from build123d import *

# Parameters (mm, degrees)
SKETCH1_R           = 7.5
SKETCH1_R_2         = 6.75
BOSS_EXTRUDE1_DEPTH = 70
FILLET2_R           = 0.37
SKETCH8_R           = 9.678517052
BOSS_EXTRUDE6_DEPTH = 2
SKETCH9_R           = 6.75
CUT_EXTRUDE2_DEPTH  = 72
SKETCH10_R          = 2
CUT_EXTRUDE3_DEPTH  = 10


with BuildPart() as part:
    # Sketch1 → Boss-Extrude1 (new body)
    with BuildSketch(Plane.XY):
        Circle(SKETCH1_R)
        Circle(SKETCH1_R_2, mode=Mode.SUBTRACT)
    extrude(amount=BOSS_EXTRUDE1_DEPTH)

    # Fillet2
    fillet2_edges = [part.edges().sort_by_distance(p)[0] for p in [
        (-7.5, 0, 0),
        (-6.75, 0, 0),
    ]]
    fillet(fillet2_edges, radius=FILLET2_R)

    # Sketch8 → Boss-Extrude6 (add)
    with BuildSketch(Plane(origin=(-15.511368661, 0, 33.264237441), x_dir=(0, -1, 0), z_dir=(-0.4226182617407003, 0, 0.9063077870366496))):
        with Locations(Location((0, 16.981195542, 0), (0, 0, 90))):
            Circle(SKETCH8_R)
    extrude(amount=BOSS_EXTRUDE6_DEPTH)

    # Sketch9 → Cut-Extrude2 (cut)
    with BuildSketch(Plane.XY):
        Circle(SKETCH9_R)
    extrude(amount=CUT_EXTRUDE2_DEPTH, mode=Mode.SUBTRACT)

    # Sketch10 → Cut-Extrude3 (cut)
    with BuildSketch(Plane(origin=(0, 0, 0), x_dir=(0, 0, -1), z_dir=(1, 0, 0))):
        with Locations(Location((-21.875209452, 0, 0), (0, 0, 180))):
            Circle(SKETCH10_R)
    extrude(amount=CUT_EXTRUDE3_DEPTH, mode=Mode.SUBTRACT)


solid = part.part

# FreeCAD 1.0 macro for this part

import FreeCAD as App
import Part
import Sketcher

V = App.Vector


def edges_at(feature, points):
    """Names of the edges that pass closest to the given points."""
    edges = feature.Shape.Edges
    near = lambda p: min(range(len(edges)), key=lambda i: edges[i].distToShape(Part.Vertex(*p))[0])
    return sorted({f"Edge{near(p) + 1}" for p in points})

doc = App.newDocument("Part")
body = doc.addObject("PartDesign::Body", "Body")

# Sketch on XY plane
sketch1 = body.newObject("Sketcher::SketchObject", "Sketch")
sketch1.AttachmentSupport = (doc.getObject("XY_Plane"), [""])
sketch1.MapMode = "FlatFace"
sketch1.addGeometry([
    Part.Circle(V(0, 0, 0), V(0, 0, 1), 8),
    Part.Circle(V(0, 0, 0), V(0, 0, 1), 7),
], False)
sketch1.addConstraint([
    Sketcher.Constraint("Coincident", 0, 3, -1, 1),
    Sketcher.Constraint("Coincident", 1, 3, -1, 1),
    Sketcher.Constraint("Diameter", 0, 15.0),
    Sketcher.Constraint("Diameter", 1, 13.5),
])
pad1 = body.newObject("PartDesign::Pad", "Pad")
pad1.Profile = sketch1
pad1.Length = 70
doc.recompute()

fillet = body.newObject("PartDesign::Fillet", "Fillet")
fillet.Base = (pad1, edges_at(pad1, [(-7.5, 0, 0), (-6.75, 0, 0)]))
fillet.Radius = 0.37

# Sketch on an angled plane
sketch2 = body.newObject("Sketcher::SketchObject", "Sketch001")
sketch2.Placement = App.Placement(V(-15.511369, 0, 33.264237), App.Rotation(V(0, -1, 0), V(0.906307787, 0, 0.422618262), V(-0.422618262, 0, 0.906307787), "ZXY"))
sketch2.addGeometry(Part.Circle(V(0, 17, 0), V(0, 0, 1), 10), False)
sketch2.addConstraint([
    Sketcher.Constraint("PointOnObject", 0, 3, -2),
    Sketcher.Constraint("Diameter", 0, 19.357034),
    Sketcher.Constraint("DistanceY", -1, 1, 0, 3, 16.981196),
])
pad2 = body.newObject("PartDesign::Pad", "Pad001")
pad2.Profile = sketch2
pad2.Length = 2

# Sketch on XY plane
sketch3 = body.newObject("Sketcher::SketchObject", "Sketch002")
sketch3.AttachmentSupport = (doc.getObject("XY_Plane"), [""])
sketch3.MapMode = "FlatFace"
sketch3.addGeometry(Part.Circle(V(0, 0, 0), V(0, 0, 1), 7), False)
sketch3.addConstraint([
    Sketcher.Constraint("Coincident", 0, 3, -1, 1),
    Sketcher.Constraint("Diameter", 0, 13.5),
])
pocket1 = body.newObject("PartDesign::Pocket", "Pocket")
pocket1.Profile = sketch3
pocket1.Length = 72
pocket1.Reversed = True

# Sketch on YZ plane
sketch4 = body.newObject("Sketcher::SketchObject", "Sketch003")
sketch4.AttachmentSupport = (doc.getObject("YZ_Plane"), [""])
sketch4.MapMode = "FlatFace"
sketch4.addGeometry(Part.Circle(V(0, 21.9, 0), V(0, 0, 1), 2), False)
sketch4.addConstraint([
    Sketcher.Constraint("PointOnObject", 0, 3, -2),
    Sketcher.Constraint("Diameter", 0, 4.0),
    Sketcher.Constraint("DistanceY", -1, 1, 0, 3, 21.875209),
])
pocket2 = body.newObject("PartDesign::Pocket", "Pocket001")
pocket2.Profile = sketch4
pocket2.Length = 10
pocket2.Reversed = True

doc.recompute()
